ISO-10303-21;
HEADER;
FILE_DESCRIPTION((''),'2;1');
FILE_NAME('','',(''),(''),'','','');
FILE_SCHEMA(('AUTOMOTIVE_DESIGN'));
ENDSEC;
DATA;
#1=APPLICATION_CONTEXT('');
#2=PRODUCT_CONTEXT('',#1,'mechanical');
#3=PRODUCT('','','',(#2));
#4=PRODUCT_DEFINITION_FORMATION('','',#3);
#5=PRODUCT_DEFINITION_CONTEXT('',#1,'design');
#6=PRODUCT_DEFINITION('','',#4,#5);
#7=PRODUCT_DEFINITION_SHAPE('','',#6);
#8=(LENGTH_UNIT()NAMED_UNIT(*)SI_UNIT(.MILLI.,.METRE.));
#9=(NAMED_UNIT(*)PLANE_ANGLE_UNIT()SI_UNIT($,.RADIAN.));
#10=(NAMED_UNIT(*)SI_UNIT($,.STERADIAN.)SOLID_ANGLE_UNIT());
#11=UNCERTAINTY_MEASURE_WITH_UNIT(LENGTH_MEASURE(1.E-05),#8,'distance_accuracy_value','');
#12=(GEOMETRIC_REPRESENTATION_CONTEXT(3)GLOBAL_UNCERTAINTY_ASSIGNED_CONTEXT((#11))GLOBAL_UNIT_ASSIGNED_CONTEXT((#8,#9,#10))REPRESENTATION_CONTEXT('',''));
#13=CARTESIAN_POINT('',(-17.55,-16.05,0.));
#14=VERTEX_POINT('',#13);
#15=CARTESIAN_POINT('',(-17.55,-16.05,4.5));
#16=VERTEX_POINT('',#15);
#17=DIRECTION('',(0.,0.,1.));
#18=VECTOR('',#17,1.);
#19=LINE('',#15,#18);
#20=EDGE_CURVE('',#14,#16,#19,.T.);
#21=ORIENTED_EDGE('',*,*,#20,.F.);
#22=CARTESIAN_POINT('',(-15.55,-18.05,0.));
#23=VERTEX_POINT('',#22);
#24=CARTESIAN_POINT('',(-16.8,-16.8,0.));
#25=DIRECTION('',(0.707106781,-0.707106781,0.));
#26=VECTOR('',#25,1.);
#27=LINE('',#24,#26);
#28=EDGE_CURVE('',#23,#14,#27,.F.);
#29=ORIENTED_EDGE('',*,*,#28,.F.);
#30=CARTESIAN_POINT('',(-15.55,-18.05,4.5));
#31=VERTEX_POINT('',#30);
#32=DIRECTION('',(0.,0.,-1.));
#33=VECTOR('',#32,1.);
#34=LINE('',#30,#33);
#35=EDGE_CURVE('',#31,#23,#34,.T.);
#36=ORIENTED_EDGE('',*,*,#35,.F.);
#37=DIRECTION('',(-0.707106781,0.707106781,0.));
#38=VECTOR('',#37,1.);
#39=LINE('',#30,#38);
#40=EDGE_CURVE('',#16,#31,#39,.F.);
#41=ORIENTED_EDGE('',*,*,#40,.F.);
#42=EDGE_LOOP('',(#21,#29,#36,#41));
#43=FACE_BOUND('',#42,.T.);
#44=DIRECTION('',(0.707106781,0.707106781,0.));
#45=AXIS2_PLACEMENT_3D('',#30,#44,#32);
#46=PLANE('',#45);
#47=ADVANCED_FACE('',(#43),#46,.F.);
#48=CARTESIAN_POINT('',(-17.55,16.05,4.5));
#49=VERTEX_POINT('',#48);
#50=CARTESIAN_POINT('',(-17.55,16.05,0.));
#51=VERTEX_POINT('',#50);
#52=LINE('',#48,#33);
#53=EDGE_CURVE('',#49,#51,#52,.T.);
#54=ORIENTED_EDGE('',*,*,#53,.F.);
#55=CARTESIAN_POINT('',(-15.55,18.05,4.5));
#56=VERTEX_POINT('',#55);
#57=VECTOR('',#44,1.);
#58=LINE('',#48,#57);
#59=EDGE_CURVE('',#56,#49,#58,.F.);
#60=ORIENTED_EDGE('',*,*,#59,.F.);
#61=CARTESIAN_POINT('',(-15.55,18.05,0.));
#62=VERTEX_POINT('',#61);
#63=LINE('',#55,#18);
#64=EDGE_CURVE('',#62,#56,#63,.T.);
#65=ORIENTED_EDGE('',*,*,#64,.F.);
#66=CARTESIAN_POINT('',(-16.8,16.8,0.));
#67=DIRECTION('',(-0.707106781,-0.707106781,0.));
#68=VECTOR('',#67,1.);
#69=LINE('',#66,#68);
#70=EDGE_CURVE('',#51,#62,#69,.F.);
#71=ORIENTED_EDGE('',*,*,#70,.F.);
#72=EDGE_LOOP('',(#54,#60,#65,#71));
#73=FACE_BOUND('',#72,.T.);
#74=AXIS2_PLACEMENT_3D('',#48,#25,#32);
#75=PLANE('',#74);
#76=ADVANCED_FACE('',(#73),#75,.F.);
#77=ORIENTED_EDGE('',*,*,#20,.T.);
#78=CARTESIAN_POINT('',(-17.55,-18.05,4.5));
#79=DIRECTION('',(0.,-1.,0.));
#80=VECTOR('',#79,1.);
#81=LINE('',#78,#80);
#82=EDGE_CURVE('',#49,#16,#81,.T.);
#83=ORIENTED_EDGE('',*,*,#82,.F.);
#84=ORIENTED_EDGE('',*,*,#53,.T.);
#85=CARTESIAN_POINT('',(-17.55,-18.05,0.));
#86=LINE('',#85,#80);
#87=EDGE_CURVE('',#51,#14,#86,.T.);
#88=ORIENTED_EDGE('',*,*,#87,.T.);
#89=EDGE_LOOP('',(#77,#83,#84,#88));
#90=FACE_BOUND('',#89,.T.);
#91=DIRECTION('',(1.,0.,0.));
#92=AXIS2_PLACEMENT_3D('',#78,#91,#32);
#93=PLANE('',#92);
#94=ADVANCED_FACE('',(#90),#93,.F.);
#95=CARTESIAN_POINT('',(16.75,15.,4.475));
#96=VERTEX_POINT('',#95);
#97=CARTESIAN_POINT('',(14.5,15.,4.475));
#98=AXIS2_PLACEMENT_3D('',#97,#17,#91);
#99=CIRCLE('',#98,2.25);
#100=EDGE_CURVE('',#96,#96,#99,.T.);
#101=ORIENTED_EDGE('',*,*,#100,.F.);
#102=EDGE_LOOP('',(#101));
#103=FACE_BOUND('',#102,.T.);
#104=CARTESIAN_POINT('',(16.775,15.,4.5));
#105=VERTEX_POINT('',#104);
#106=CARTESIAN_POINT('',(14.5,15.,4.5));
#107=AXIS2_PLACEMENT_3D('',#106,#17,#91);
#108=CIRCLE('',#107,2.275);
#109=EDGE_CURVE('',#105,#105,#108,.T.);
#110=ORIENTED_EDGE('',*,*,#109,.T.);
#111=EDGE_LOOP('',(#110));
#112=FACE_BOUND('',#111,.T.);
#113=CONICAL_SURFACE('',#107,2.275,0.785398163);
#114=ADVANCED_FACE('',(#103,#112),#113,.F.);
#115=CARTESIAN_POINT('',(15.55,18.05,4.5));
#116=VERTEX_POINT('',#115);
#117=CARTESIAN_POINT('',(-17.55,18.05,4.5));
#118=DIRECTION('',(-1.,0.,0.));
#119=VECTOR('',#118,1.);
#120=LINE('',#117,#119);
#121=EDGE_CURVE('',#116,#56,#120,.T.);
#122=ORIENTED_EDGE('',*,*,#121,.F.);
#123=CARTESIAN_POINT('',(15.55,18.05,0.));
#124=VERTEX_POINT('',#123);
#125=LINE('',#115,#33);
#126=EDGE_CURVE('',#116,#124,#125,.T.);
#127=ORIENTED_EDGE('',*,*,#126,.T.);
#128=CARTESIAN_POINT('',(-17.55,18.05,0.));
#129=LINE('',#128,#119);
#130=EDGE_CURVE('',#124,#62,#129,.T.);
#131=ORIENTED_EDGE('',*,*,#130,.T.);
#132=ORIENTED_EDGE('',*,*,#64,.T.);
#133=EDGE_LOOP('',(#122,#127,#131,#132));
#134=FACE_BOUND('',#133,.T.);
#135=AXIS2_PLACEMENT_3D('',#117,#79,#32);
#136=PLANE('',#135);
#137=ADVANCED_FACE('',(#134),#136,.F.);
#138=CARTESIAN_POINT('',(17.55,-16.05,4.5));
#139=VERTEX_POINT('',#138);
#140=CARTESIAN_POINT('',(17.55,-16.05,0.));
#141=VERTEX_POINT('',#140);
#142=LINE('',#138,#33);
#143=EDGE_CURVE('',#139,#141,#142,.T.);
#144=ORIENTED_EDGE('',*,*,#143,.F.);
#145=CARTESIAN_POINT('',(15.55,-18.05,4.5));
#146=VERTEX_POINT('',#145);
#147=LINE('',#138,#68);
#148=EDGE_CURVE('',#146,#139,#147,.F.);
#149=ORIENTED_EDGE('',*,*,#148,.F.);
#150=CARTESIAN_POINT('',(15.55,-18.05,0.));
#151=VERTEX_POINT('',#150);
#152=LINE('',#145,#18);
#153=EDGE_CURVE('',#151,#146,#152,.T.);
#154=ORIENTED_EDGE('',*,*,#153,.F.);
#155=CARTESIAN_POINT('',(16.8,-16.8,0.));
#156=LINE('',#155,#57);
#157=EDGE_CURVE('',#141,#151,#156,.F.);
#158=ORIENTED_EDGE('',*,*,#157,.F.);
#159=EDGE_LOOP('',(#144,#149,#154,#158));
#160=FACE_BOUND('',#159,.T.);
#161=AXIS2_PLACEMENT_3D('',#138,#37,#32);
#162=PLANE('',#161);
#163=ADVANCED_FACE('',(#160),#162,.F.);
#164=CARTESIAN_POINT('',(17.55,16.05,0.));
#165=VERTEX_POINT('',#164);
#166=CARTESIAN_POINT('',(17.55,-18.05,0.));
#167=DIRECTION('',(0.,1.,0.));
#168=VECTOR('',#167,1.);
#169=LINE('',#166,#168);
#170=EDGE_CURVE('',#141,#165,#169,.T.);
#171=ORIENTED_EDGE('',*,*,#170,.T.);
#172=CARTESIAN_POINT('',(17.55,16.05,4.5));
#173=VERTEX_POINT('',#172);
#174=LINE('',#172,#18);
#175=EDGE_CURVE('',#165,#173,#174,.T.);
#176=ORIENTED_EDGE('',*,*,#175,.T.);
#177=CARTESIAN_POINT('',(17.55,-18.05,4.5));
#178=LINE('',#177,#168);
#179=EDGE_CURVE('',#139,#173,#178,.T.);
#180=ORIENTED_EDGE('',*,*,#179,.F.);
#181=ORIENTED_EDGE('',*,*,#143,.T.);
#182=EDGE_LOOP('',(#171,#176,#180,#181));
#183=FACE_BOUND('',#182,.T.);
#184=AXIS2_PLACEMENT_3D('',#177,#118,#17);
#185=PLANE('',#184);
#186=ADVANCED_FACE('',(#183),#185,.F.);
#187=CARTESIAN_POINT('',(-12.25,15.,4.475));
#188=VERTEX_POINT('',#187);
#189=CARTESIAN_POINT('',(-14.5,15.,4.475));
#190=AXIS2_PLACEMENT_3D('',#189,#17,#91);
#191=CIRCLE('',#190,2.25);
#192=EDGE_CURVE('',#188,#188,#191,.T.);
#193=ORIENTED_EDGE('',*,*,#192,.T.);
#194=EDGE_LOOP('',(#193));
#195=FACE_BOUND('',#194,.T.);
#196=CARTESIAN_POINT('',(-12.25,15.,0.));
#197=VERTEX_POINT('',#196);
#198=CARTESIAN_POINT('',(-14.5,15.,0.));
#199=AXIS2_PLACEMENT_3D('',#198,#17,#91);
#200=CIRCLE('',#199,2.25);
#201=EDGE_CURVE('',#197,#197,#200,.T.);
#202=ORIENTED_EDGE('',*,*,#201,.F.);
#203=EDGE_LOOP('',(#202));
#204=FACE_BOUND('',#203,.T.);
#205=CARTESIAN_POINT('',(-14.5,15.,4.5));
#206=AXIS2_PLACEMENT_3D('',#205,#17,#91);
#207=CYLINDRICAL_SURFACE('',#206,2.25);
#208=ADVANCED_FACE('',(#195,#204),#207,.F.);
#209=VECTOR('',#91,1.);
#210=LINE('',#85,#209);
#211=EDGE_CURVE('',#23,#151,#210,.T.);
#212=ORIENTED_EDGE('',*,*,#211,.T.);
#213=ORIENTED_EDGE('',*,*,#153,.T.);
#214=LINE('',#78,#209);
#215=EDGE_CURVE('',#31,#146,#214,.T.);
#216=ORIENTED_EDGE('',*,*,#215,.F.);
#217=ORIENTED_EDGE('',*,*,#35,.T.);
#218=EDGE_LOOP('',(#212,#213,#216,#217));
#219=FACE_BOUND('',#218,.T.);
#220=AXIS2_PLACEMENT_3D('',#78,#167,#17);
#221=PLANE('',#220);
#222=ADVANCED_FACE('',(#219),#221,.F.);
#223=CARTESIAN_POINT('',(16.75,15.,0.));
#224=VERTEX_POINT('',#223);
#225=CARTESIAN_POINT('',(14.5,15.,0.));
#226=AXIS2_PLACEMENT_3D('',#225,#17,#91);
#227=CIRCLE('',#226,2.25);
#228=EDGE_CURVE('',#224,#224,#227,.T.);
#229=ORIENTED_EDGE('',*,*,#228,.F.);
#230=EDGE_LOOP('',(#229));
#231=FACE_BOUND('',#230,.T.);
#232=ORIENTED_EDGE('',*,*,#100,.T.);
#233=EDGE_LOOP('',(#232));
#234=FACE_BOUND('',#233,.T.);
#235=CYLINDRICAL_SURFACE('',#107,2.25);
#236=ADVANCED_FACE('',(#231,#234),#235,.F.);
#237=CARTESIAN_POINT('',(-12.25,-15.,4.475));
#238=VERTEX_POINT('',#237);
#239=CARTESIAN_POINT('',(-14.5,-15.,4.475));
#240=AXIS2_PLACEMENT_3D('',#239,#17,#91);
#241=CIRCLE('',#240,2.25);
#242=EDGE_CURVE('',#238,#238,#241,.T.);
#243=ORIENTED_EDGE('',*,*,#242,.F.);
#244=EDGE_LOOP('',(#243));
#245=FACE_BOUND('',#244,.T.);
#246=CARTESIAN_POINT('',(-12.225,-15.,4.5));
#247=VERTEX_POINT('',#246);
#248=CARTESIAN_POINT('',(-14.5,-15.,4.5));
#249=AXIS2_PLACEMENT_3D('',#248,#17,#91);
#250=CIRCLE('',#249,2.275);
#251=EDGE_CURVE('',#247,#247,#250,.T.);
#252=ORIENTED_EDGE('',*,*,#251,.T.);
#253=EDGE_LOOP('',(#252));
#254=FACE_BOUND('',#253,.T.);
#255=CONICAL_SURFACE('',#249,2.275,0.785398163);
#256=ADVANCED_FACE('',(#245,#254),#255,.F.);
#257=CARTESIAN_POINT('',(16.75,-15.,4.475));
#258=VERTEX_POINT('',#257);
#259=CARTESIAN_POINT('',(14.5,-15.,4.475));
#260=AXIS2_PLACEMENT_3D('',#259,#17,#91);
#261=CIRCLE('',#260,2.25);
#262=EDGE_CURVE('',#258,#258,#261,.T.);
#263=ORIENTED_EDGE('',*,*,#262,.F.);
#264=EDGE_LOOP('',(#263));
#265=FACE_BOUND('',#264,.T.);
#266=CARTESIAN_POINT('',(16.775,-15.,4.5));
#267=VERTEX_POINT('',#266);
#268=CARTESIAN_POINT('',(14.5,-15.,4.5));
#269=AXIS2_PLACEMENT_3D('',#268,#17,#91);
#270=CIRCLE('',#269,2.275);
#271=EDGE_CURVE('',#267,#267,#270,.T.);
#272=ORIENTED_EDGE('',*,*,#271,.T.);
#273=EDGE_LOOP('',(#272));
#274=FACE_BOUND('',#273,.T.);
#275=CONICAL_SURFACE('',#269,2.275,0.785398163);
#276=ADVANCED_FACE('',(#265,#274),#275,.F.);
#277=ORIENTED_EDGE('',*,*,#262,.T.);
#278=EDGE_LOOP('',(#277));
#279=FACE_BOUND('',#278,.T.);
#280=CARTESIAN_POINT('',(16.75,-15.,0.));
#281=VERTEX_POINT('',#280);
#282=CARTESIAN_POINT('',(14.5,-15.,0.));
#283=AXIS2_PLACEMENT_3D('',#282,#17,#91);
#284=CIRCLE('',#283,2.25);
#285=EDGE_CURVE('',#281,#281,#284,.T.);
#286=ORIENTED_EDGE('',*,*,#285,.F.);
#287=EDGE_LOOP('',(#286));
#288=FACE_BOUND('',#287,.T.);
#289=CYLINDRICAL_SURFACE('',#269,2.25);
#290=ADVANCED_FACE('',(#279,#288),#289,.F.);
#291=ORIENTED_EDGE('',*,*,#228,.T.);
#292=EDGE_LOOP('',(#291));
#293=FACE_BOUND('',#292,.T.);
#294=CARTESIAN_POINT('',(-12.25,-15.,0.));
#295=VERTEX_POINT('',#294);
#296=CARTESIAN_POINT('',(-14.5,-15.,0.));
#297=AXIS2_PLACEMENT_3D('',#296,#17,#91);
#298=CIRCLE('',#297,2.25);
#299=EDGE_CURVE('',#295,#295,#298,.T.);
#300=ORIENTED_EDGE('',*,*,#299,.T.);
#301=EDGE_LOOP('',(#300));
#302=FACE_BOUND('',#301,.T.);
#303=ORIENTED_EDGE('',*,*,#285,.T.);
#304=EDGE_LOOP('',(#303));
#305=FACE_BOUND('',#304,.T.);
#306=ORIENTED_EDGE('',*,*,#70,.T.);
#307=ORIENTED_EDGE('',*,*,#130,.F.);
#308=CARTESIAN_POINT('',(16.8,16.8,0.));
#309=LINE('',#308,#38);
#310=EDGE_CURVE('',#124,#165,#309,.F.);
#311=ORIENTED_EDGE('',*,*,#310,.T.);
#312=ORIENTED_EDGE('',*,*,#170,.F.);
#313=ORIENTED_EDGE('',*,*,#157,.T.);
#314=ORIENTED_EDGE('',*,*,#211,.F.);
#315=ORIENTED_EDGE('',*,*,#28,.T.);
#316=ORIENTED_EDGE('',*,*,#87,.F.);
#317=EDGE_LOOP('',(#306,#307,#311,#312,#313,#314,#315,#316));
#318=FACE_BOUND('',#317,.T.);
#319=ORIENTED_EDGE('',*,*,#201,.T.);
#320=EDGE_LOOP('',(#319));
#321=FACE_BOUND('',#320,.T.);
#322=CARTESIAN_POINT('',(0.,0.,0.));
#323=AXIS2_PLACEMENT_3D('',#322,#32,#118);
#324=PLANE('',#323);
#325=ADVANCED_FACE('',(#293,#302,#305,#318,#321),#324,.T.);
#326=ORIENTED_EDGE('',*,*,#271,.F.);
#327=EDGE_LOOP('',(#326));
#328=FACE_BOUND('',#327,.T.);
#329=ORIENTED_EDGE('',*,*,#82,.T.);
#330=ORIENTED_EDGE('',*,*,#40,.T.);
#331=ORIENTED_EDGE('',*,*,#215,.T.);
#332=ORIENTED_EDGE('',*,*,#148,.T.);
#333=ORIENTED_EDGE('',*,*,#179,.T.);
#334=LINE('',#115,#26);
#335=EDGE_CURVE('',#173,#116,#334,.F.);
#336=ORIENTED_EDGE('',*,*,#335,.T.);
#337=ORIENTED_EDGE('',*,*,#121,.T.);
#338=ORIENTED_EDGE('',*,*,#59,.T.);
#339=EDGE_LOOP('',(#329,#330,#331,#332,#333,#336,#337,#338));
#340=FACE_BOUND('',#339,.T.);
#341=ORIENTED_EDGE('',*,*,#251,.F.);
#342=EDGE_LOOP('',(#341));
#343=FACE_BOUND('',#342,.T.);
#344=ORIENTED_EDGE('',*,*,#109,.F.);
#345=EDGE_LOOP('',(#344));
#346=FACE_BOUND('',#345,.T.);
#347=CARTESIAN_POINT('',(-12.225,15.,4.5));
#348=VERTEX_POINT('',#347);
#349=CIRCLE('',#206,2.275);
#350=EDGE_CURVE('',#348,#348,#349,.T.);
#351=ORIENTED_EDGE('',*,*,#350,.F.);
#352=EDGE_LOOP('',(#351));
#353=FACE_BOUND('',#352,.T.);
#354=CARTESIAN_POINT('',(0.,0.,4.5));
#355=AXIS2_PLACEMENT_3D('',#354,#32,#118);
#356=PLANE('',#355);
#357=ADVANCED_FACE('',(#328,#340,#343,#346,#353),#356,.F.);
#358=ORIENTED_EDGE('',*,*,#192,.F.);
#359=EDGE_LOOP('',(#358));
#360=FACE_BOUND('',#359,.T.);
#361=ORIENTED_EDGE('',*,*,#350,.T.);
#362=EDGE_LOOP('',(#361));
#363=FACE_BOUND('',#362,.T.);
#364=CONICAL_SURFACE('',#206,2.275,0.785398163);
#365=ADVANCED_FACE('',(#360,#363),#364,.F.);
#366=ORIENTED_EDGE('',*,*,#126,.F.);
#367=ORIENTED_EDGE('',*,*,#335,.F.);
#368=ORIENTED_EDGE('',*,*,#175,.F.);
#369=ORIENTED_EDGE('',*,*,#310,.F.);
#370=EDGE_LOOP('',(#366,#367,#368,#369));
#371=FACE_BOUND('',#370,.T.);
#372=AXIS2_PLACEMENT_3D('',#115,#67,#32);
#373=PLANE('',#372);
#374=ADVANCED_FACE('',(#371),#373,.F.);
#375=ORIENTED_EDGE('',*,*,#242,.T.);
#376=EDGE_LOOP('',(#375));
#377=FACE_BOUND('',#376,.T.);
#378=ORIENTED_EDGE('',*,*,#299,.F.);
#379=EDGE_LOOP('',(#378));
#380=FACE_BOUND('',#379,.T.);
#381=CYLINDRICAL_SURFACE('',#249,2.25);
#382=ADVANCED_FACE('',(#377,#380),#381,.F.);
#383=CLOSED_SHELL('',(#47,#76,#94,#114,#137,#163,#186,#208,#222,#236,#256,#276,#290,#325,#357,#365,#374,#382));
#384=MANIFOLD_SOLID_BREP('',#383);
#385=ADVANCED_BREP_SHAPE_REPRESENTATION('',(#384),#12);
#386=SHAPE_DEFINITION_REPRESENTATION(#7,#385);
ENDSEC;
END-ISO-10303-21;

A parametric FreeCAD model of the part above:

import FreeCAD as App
import Part
import Sketcher
Q = App.Units.Quantity


def edges_at(feature, points):
    """Names of the edges that pass closest to the given points."""
    edges = feature.Shape.Edges
    near = lambda p: min(range(len(edges)), key=lambda i: edges[i].distToShape(Part.Vertex(*p))[0])
    return sorted({f"Edge{near(p) + 1}" for p in points})

doc = App.newDocument("Part")
body = doc.addObject("PartDesign::Body", "Body")

sketch1 = body.newObject("Sketcher::SketchObject", "Sketch")
sketch1.AttachmentSupport = (doc.getObject("XY_Plane"), [""])
sketch1.MapMode = "FlatFace"
sketch1.addGeometry(Part.LineSegment(App.Vector(-18, 18, 0), App.Vector(-18, -18, 0)), False)
sketch1.addGeometry(Part.LineSegment(App.Vector(-18, -18, 0), App.Vector(18, -18, 0)), False)
sketch1.addGeometry(Part.LineSegment(App.Vector(18, -18, 0), App.Vector(18, 18, 0)), False)
sketch1.addGeometry(Part.LineSegment(App.Vector(18, 18, 0), App.Vector(-18, 18, 0)), False)
sketch1.addConstraint(Sketcher.Constraint("Coincident", 0, 2, 1, 1))
sketch1.addConstraint(Sketcher.Constraint("Coincident", 1, 2, 2, 1))
sketch1.addConstraint(Sketcher.Constraint("Coincident", 2, 2, 3, 1))
sketch1.addConstraint(Sketcher.Constraint("Coincident", 3, 2, 0, 1))
sketch1.addConstraint(Sketcher.Constraint("Vertical", 0))
sketch1.addConstraint(Sketcher.Constraint("Horizontal", 1))
sketch1.addConstraint(Sketcher.Constraint("Vertical", 2))
sketch1.addConstraint(Sketcher.Constraint("Horizontal", 3))
sketch1.addConstraint(Sketcher.Constraint("Symmetric", 0, 2, 2, 2, -1, 1))
sketch1.addConstraint(Sketcher.Constraint("DistanceX", 1, 1, 1, 2, Q("35.1 mm")))
sketch1.addConstraint(Sketcher.Constraint("DistanceY", 0, 2, 0, 1, Q("36.1 mm")))
pad1 = body.newObject("PartDesign::Pad", "Pad")
pad1.Profile = sketch1
pad1.Length = 4.5
doc.recompute()

chamfer = body.newObject("PartDesign::Chamfer", "Chamfer")
chamfer.Base = (pad1, edges_at(pad1, [
    (17.55, -18.05, 2.25),
    (-17.55, -18.05, 2.25),
    (-17.55, 18.05, 2.25),
    (17.55, 18.05, 2.25),
]))
chamfer.Size = 2

sketch2 = body.newObject("Sketcher::SketchObject", "Sketch001")
sketch2.AttachmentSupport = (doc.getObject("XY_Plane"), [""])
sketch2.MapMode = "FlatFace"
sketch2.AttachmentOffset = App.Placement(App.Vector(0, 0, 4.5), App.Rotation())
sketch2.addGeometry(Part.Circle(App.Vector(-14.5, 15, 0), App.Vector(0, 0, 1), 2.2), False)
sketch2.addGeometry(Part.Circle(App.Vector(14.5, 15, 0), App.Vector(0, 0, 1), 2.2), False)
sketch2.addGeometry(Part.Circle(App.Vector(14.5, -15, 0), App.Vector(0, 0, 1), 2.2), False)
sketch2.addGeometry(Part.Circle(App.Vector(-14.5, -15, 0), App.Vector(0, 0, 1), 2.2), False)
sketch2.addConstraint(Sketcher.Constraint("Equal", 0, 1))
sketch2.addConstraint(Sketcher.Constraint("Equal", 1, 2))
sketch2.addConstraint(Sketcher.Constraint("Equal", 2, 3))
sketch2.addConstraint(Sketcher.Constraint("Symmetric", 0, 3, 2, 3, -1, 1))
sketch2.addConstraint(Sketcher.Constraint("Symmetric", 1, 3, 3, 3, -1, 1))
sketch2.addConstraint(Sketcher.Constraint("Symmetric", 0, 3, 1, 3, -2))
sketch2.addConstraint(Sketcher.Constraint("Diameter", 0, Q("4.5 mm")))
sketch2.addConstraint(Sketcher.Constraint("DistanceY", -1, 1, 0, 3, Q("15 mm")))
sketch2.addConstraint(Sketcher.Constraint("DistanceX", 0, 3, 1, 3, Q("29 mm")))
doc.recompute()
hole = body.newObject("PartDesign::Hole", "Hole")
hole.Profile = sketch2
hole.ThreadType = "None"
hole.Diameter = 4.5
hole.DepthType = "ThroughAll"
hole.HoleCutType = "Countersink"
hole.HoleCutDiameter = 4.55
hole.HoleCutCountersinkAngle = 90

doc.recompute()
